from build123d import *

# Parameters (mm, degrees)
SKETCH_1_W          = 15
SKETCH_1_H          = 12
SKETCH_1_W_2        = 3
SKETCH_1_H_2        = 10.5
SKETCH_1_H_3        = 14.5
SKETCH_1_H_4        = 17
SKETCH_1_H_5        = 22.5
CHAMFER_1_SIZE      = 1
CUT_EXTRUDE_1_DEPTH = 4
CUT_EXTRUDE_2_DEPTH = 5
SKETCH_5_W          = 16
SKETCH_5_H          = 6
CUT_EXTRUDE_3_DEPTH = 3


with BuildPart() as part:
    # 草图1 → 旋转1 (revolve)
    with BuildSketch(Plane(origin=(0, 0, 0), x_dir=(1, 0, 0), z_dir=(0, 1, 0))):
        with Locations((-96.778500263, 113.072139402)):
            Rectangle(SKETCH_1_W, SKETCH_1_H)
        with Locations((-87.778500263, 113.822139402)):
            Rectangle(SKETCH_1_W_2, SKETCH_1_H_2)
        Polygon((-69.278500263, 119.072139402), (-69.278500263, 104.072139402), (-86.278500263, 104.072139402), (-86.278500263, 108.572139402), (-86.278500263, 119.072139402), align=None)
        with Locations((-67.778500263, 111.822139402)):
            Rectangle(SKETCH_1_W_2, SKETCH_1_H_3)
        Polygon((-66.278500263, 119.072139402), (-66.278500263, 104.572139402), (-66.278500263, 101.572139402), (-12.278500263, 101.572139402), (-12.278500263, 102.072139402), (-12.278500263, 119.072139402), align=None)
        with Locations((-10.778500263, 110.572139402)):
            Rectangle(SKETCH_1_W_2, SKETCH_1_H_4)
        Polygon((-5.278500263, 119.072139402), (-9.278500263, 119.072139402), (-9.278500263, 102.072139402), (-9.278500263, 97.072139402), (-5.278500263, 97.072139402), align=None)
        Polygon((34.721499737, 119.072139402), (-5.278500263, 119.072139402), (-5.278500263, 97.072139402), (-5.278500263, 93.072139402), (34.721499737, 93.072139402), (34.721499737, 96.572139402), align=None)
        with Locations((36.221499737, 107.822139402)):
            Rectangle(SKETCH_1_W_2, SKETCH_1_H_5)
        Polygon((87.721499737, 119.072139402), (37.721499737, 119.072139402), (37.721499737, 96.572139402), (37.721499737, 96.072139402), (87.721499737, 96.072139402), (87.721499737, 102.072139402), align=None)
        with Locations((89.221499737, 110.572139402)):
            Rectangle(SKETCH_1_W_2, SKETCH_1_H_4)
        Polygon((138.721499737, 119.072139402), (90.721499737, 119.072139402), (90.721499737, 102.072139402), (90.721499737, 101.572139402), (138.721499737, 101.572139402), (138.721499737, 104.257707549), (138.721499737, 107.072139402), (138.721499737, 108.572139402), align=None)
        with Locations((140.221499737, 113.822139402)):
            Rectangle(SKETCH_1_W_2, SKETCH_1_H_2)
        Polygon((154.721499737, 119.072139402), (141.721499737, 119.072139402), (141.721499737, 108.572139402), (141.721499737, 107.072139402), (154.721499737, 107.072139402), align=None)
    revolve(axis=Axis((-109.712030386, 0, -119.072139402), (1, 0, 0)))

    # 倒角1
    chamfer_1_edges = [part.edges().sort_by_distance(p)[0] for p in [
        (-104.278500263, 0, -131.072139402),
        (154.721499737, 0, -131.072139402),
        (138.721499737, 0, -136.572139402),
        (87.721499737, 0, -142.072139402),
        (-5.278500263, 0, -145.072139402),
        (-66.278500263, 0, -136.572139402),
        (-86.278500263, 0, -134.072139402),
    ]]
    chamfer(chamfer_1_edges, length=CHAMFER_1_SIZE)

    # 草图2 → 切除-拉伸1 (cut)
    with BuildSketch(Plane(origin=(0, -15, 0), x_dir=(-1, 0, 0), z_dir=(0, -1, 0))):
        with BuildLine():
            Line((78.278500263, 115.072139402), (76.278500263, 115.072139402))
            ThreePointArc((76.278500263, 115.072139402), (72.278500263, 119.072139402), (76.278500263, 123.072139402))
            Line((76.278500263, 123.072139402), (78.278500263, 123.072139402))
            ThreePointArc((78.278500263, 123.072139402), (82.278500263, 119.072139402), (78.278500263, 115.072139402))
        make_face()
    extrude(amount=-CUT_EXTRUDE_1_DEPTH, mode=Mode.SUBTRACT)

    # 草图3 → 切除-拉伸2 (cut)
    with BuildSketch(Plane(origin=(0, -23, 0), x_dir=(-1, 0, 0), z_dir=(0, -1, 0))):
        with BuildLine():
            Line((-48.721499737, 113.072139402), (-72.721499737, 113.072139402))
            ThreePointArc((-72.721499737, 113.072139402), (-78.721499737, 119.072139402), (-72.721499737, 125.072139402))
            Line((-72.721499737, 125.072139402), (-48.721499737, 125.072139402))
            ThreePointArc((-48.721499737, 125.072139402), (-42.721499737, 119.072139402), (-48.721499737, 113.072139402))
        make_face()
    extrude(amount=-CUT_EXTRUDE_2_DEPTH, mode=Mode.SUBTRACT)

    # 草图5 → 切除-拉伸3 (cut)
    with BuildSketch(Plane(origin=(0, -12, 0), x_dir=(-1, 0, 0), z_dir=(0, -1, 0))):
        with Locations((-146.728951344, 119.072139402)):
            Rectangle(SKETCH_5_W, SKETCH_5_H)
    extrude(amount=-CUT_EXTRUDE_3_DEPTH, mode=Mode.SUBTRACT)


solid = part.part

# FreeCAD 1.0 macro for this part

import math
import FreeCAD as App
import Part
import Sketcher

V = App.Vector


def edges_at(feature, points):
    """Names of the edges that pass closest to the given points."""
    edges = feature.Shape.Edges
    near = lambda p: min(range(len(edges)), key=lambda i: edges[i].distToShape(Part.Vertex(*p))[0])
    return sorted({f"Edge{near(p) + 1}" for p in points})


def add_polygon(sketch, points):
    """Adds a closed chain of lines whose ends are joined by coincident constraints."""
    first, n = sketch.GeometryCount, len(points)
    for a, b in zip(points, points[1:] + points[:1]):
        sketch.addGeometry(Part.LineSegment(App.Vector(*a, 0), App.Vector(*b, 0)), False)
    for i in range(n):
        sketch.addConstraint(Sketcher.Constraint("Coincident", first + i, 2, first + (i + 1) % n, 1))

doc = App.newDocument("Part")
params = doc.addObject("Spreadsheet::Sheet", "Params")
for row, (alias, value) in enumerate([
    ("sketch1_width", "15 mm"),
    ("sketch1_width2", "3 mm"),
    ("sketch1_width3", "17 mm"),
    ("sketch1_width4", "54 mm"),
    ("sketch1_width5", "4 mm"),
    ("revolution_angle", "360 deg"),
    ("chamfer_size", "1 mm"),
    ("sketch2_radius", "4 mm"),
    ("sketch2_width", "2 mm"),
    ("pocket1_length", "4 mm"),
    ("sketch3_radius", "6 mm"),
    ("sketch3_width", "24 mm"),
    ("pocket2_length", "5 mm"),
    ("sketch4_width", "16 mm"),
    ("sketch4_height", "6 mm"),
    ("pocket3_length", "3 mm"),
], start=1):
    params.set(f"A{row}", alias)
    params.set(f"B{row}", "=" + value)
    params.setAlias(f"B{row}", alias)

body = doc.addObject("PartDesign::Body", "Body")

# Sketch on XZ plane
sketch1 = doc.addObject("Sketcher::SketchObject", "Sketch")
body.addObject(sketch1)
sketch1.AttachmentSupport = (doc.XZ_Plane, [""])
sketch1.MapMode = "FlatFace"
add_polygon(sketch1, [(-104.3, -119.1), (-104.3, -107.1), (-89.3, -107.1), (-89.3, -108.6), (-86.3, -108.6), (-86.3, -104.1), (-69.3, -104.1), (-69.3, -104.6), (-66.3, -104.6), (-66.3, -101.6), (-12.3, -101.6), (-12.3, -102.1), (-9.3, -102.1), (-9.3, -97.1), (-5.3, -97.1), (-5.3, -93.1), (34.7, -93.1), (34.7, -96.6), (37.7, -96.6), (37.7, -96.1), (87.7, -96.1), (87.7, -102.1), (90.7, -102.1), (90.7, -101.6), (138.7, -101.6), (138.7, -108.6), (141.7, -108.6), (141.7, -107.1), (154.7, -107.1), (154.7, -119.1)])  # lines 0-29
sketch1.addGeometry(Part.LineSegment(V(-104.3, -119.1, 0), V(154.7, -119.1, 0)), True)  # axis
sketch1.addConstraint(Sketcher.Constraint("Vertical", 0))
sketch1.addConstraint(Sketcher.Constraint("Horizontal", 1))
sketch1.addConstraint(Sketcher.Constraint("Vertical", 2))
sketch1.addConstraint(Sketcher.Constraint("Horizontal", 3))
sketch1.addConstraint(Sketcher.Constraint("Vertical", 4))
sketch1.addConstraint(Sketcher.Constraint("Horizontal", 5))
sketch1.addConstraint(Sketcher.Constraint("Vertical", 6))
sketch1.addConstraint(Sketcher.Constraint("Horizontal", 7))
sketch1.addConstraint(Sketcher.Constraint("Vertical", 8))
sketch1.addConstraint(Sketcher.Constraint("Horizontal", 9))
sketch1.addConstraint(Sketcher.Constraint("Vertical", 10))
sketch1.addConstraint(Sketcher.Constraint("Horizontal", 11))
sketch1.addConstraint(Sketcher.Constraint("Vertical", 12))
sketch1.addConstraint(Sketcher.Constraint("Horizontal", 13))
sketch1.addConstraint(Sketcher.Constraint("Vertical", 14))
sketch1.addConstraint(Sketcher.Constraint("Horizontal", 15))
sketch1.addConstraint(Sketcher.Constraint("Vertical", 16))
sketch1.addConstraint(Sketcher.Constraint("Horizontal", 17))
sketch1.addConstraint(Sketcher.Constraint("Vertical", 18))
sketch1.addConstraint(Sketcher.Constraint("Horizontal", 19))
sketch1.addConstraint(Sketcher.Constraint("Vertical", 20))
sketch1.addConstraint(Sketcher.Constraint("Horizontal", 21))
sketch1.addConstraint(Sketcher.Constraint("Vertical", 22))
sketch1.addConstraint(Sketcher.Constraint("Horizontal", 23))
sketch1.addConstraint(Sketcher.Constraint("Vertical", 24))
sketch1.addConstraint(Sketcher.Constraint("Horizontal", 25))
sketch1.addConstraint(Sketcher.Constraint("Vertical", 26))
sketch1.addConstraint(Sketcher.Constraint("Horizontal", 27))
sketch1.addConstraint(Sketcher.Constraint("Vertical", 28))
sketch1.addConstraint(Sketcher.Constraint("Horizontal", 29))
sketch1.addConstraint(Sketcher.Constraint("Horizontal", 30))
sketch1.addConstraint(Sketcher.Constraint("Coincident", 30, 1, 29, 2))
sketch1.addConstraint(Sketcher.Constraint("Horizontal", 11, 2, 20, 2))
sketch1.addConstraint(Sketcher.Constraint("Horizontal", 9, 2, 22, 2))
sketch1.addConstraint(Sketcher.Constraint("Horizontal", 3, 2, 24, 2))
sketch1.addConstraint(Sketcher.Constraint("Horizontal", 1, 2, 26, 2))
sketch1.addConstraint(Sketcher.Constraint("Vertical", 27, 2, 30, 2))
sketch1.addConstraint(Sketcher.Constraint("Equal", 3, 7))
sketch1.addConstraint(Sketcher.Constraint("Equal", 7, 11))
sketch1.addConstraint(Sketcher.Constraint("Equal", 11, 17))
sketch1.addConstraint(Sketcher.Constraint("Equal", 17, 21))
sketch1.addConstraint(Sketcher.Constraint("Equal", 21, 25))
sketch1.addConstraint(Sketcher.Constraint("Equal", 25, 8))
sketch1.addConstraint(Sketcher.Constraint("Equal", 6, 10))
sketch1.addConstraint(Sketcher.Constraint("Equal", 13, 14))
sketch1.addConstraint(Sketcher.Constraint("Equal", 10, 18))
sketch1.addConstraint(Sketcher.Constraint("DistanceX", 1, 1, 1, 2, 15.0))
sketch1.addConstraint(Sketcher.Constraint("DistanceX", 3, 1, 3, 2, 3.0))
sketch1.addConstraint(Sketcher.Constraint("DistanceX", 5, 1, 5, 2, 17.0))
sketch1.addConstraint(Sketcher.Constraint("DistanceX", 9, 1, 9, 2, 54.0))
sketch1.addConstraint(Sketcher.Constraint("DistanceX", 13, 1, 13, 2, 4.0))
sketch1.addConstraint(Sketcher.Constraint("DistanceX", 15, 1, 15, 2, 40.0))
sketch1.addConstraint(Sketcher.Constraint("DistanceX", 19, 1, 19, 2, 50.0))
sketch1.addConstraint(Sketcher.Constraint("DistanceX", 23, 1, 23, 2, 48.0))
sketch1.addConstraint(Sketcher.Constraint("DistanceX", 27, 1, 27, 2, 13.0))
sketch1.addConstraint(Sketcher.Constraint("DistanceY", 0, 1, 0, 2, 12.0))
sketch1.addConstraint(Sketcher.Constraint("DistanceY", 12, 1, 12, 2, 5.0))
sketch1.addConstraint(Sketcher.Constraint("DistanceY", 20, 2, 20, 1, 6.0))
sketch1.addConstraint(Sketcher.Constraint("DistanceY", 24, 2, 24, 1, 7.0))
sketch1.addConstraint(Sketcher.Constraint("DistanceY", 2, 2, 2, 1, 1.5))
sketch1.addConstraint(Sketcher.Constraint("DistanceY", 4, 1, 4, 2, 4.5))
sketch1.addConstraint(Sketcher.Constraint("DistanceX", 0, 2, -1, 1, 104.2785))
sketch1.addConstraint(Sketcher.Constraint("DistanceY", 0, 2, -1, 1, 107.072139))
sketch1.setExpression("Constraints[76]", "Params.sketch1_width")
sketch1.setExpression("Constraints[77]", "Params.sketch1_width2")
sketch1.setExpression("Constraints[78]", "Params.sketch1_width3")
sketch1.setExpression("Constraints[79]", "Params.sketch1_width4")
sketch1.setExpression("Constraints[80]", "Params.sketch1_width5")
revolution = doc.addObject("PartDesign::Revolution", "Revolution")
body.addObject(revolution)
revolution.Profile = sketch1
revolution.ReferenceAxis = (sketch1, ["Axis0"])
revolution.setExpression("Angle", "Params.revolution_angle")
doc.recompute()

chamfer = doc.addObject("PartDesign::Chamfer", "Chamfer")
body.addObject(chamfer)
chamfer.Base = (revolution, edges_at(revolution, [
    (-104.279, 0, -131.072),
    (154.721, 0, -131.072),
    (138.721, 0, -136.572),
    (87.721, 0, -142.072),
    (-5.279, 0, -145.072),
    (-66.279, 0, -136.572),
    (-86.279, 0, -134.072),
]))
chamfer.setExpression("Size", "Params.chamfer_size")

# Sketch on XZ plane
sketch2 = doc.addObject("Sketcher::SketchObject", "Sketch001")
body.addObject(sketch2)
sketch2.AttachmentSupport = (doc.XZ_Plane, [""])
sketch2.MapMode = "FlatFace"
sketch2.AttachmentOffset = App.Placement(V(0, 0, 15), App.Rotation())
sketch2.addGeometry(Part.LineSegment(V(-76.3, -115.1, 0), V(-78.3, -115.1, 0)), False)
sketch2.addGeometry(Part.ArcOfCircle(Part.Circle(V(-78.3, -119.1, 0), V(0, 0, 1), 4), math.radians(90), math.radians(270)), False)
sketch2.addGeometry(Part.LineSegment(V(-78.3, -123.1, 0), V(-76.3, -123.1, 0)), False)
sketch2.addGeometry(Part.ArcOfCircle(Part.Circle(V(-76.3, -119.1, 0), V(0, 0, 1), 4), math.radians(-90), math.radians(90)), False)
sketch2.addConstraint(Sketcher.Constraint("Tangent", 0, 2, 1, 1))
sketch2.addConstraint(Sketcher.Constraint("Tangent", 1, 2, 2, 1))
sketch2.addConstraint(Sketcher.Constraint("Tangent", 2, 2, 3, 1))
sketch2.addConstraint(Sketcher.Constraint("Tangent", 3, 2, 0, 1))
sketch2.addConstraint(Sketcher.Constraint("Horizontal", 0))
sketch2.addConstraint(Sketcher.Constraint("Horizontal", 2))
sketch2.addConstraint(Sketcher.Constraint("Radius", 1, 4.0))
sketch2.addConstraint(Sketcher.Constraint("DistanceX", 0, 2, 0, 1, 2.0))
sketch2.addConstraint(Sketcher.Constraint("DistanceX", 1, 3, -1, 1, 78.2785))
sketch2.addConstraint(Sketcher.Constraint("DistanceY", 1, 3, -1, 1, 119.072139))
sketch2.setExpression("Constraints[6]", "Params.sketch2_radius")
sketch2.setExpression("Constraints[7]", "Params.sketch2_width")
pocket1 = doc.addObject("PartDesign::Pocket", "Pocket")
body.addObject(pocket1)
pocket1.Profile = sketch2
pocket1.setExpression("Length", "Params.pocket1_length")

# Sketch on XZ plane
sketch3 = doc.addObject("Sketcher::SketchObject", "Sketch002")
body.addObject(sketch3)
sketch3.AttachmentSupport = (doc.XZ_Plane, [""])
sketch3.MapMode = "FlatFace"
sketch3.AttachmentOffset = App.Placement(V(0, 0, 23), App.Rotation())
sketch3.addGeometry(Part.LineSegment(V(73, -113, 0), V(49, -113, 0)), False)
sketch3.addGeometry(Part.ArcOfCircle(Part.Circle(V(49, -119, 0), V(0, 0, 1), 6), math.radians(90), math.radians(270)), False)
sketch3.addGeometry(Part.LineSegment(V(49, -125, 0), V(73, -125, 0)), False)
sketch3.addGeometry(Part.ArcOfCircle(Part.Circle(V(73, -119, 0), V(0, 0, 1), 6), math.radians(-90), math.radians(90)), False)
sketch3.addConstraint(Sketcher.Constraint("Tangent", 0, 2, 1, 1))
sketch3.addConstraint(Sketcher.Constraint("Tangent", 1, 2, 2, 1))
sketch3.addConstraint(Sketcher.Constraint("Tangent", 2, 2, 3, 1))
sketch3.addConstraint(Sketcher.Constraint("Tangent", 3, 2, 0, 1))
sketch3.addConstraint(Sketcher.Constraint("Horizontal", 0))
sketch3.addConstraint(Sketcher.Constraint("Horizontal", 2))
sketch3.addConstraint(Sketcher.Constraint("Radius", 1, 6.0))
sketch3.addConstraint(Sketcher.Constraint("DistanceX", 0, 2, 0, 1, 24.0))
sketch3.addConstraint(Sketcher.Constraint("DistanceX", -1, 1, 1, 3, 48.7215))
sketch3.addConstraint(Sketcher.Constraint("DistanceY", 1, 3, -1, 1, 119.072139))
sketch3.setExpression("Constraints[6]", "Params.sketch3_radius")
sketch3.setExpression("Constraints[7]", "Params.sketch3_width")
pocket2 = doc.addObject("PartDesign::Pocket", "Pocket001")
body.addObject(pocket2)
pocket2.Profile = sketch3
pocket2.setExpression("Length", "Params.pocket2_length")

# Sketch on XZ plane
sketch4 = doc.addObject("Sketcher::SketchObject", "Sketch003")
body.addObject(sketch4)
sketch4.AttachmentSupport = (doc.XZ_Plane, [""])
sketch4.MapMode = "FlatFace"
sketch4.AttachmentOffset = App.Placement(V(0, 0, 12), App.Rotation())
add_polygon(sketch4, [(155, -122), (155, -116), (139, -116), (139, -122)])  # lines 0-3
sketch4.addConstraint(Sketcher.Constraint("Vertical", 0))
sketch4.addConstraint(Sketcher.Constraint("Horizontal", 1))
sketch4.addConstraint(Sketcher.Constraint("Vertical", 2))
sketch4.addConstraint(Sketcher.Constraint("Horizontal", 3))
sketch4.addConstraint(Sketcher.Constraint("DistanceX", 1, 2, 1, 1, 16.0))
sketch4.addConstraint(Sketcher.Constraint("DistanceY", 0, 1, 0, 2, 6.0))
sketch4.addConstraint(Sketcher.Constraint("DistanceX", -1, 1, 0, 2, 154.728951))
sketch4.addConstraint(Sketcher.Constraint("DistanceY", 0, 2, -1, 1, 116.072139))
sketch4.setExpression("Constraints[8]", "Params.sketch4_width")
sketch4.setExpression("Constraints[9]", "Params.sketch4_height")
pocket3 = doc.addObject("PartDesign::Pocket", "Pocket002")
body.addObject(pocket3)
pocket3.Profile = sketch4
pocket3.setExpression("Length", "Params.pocket3_length")

doc.recompute()
